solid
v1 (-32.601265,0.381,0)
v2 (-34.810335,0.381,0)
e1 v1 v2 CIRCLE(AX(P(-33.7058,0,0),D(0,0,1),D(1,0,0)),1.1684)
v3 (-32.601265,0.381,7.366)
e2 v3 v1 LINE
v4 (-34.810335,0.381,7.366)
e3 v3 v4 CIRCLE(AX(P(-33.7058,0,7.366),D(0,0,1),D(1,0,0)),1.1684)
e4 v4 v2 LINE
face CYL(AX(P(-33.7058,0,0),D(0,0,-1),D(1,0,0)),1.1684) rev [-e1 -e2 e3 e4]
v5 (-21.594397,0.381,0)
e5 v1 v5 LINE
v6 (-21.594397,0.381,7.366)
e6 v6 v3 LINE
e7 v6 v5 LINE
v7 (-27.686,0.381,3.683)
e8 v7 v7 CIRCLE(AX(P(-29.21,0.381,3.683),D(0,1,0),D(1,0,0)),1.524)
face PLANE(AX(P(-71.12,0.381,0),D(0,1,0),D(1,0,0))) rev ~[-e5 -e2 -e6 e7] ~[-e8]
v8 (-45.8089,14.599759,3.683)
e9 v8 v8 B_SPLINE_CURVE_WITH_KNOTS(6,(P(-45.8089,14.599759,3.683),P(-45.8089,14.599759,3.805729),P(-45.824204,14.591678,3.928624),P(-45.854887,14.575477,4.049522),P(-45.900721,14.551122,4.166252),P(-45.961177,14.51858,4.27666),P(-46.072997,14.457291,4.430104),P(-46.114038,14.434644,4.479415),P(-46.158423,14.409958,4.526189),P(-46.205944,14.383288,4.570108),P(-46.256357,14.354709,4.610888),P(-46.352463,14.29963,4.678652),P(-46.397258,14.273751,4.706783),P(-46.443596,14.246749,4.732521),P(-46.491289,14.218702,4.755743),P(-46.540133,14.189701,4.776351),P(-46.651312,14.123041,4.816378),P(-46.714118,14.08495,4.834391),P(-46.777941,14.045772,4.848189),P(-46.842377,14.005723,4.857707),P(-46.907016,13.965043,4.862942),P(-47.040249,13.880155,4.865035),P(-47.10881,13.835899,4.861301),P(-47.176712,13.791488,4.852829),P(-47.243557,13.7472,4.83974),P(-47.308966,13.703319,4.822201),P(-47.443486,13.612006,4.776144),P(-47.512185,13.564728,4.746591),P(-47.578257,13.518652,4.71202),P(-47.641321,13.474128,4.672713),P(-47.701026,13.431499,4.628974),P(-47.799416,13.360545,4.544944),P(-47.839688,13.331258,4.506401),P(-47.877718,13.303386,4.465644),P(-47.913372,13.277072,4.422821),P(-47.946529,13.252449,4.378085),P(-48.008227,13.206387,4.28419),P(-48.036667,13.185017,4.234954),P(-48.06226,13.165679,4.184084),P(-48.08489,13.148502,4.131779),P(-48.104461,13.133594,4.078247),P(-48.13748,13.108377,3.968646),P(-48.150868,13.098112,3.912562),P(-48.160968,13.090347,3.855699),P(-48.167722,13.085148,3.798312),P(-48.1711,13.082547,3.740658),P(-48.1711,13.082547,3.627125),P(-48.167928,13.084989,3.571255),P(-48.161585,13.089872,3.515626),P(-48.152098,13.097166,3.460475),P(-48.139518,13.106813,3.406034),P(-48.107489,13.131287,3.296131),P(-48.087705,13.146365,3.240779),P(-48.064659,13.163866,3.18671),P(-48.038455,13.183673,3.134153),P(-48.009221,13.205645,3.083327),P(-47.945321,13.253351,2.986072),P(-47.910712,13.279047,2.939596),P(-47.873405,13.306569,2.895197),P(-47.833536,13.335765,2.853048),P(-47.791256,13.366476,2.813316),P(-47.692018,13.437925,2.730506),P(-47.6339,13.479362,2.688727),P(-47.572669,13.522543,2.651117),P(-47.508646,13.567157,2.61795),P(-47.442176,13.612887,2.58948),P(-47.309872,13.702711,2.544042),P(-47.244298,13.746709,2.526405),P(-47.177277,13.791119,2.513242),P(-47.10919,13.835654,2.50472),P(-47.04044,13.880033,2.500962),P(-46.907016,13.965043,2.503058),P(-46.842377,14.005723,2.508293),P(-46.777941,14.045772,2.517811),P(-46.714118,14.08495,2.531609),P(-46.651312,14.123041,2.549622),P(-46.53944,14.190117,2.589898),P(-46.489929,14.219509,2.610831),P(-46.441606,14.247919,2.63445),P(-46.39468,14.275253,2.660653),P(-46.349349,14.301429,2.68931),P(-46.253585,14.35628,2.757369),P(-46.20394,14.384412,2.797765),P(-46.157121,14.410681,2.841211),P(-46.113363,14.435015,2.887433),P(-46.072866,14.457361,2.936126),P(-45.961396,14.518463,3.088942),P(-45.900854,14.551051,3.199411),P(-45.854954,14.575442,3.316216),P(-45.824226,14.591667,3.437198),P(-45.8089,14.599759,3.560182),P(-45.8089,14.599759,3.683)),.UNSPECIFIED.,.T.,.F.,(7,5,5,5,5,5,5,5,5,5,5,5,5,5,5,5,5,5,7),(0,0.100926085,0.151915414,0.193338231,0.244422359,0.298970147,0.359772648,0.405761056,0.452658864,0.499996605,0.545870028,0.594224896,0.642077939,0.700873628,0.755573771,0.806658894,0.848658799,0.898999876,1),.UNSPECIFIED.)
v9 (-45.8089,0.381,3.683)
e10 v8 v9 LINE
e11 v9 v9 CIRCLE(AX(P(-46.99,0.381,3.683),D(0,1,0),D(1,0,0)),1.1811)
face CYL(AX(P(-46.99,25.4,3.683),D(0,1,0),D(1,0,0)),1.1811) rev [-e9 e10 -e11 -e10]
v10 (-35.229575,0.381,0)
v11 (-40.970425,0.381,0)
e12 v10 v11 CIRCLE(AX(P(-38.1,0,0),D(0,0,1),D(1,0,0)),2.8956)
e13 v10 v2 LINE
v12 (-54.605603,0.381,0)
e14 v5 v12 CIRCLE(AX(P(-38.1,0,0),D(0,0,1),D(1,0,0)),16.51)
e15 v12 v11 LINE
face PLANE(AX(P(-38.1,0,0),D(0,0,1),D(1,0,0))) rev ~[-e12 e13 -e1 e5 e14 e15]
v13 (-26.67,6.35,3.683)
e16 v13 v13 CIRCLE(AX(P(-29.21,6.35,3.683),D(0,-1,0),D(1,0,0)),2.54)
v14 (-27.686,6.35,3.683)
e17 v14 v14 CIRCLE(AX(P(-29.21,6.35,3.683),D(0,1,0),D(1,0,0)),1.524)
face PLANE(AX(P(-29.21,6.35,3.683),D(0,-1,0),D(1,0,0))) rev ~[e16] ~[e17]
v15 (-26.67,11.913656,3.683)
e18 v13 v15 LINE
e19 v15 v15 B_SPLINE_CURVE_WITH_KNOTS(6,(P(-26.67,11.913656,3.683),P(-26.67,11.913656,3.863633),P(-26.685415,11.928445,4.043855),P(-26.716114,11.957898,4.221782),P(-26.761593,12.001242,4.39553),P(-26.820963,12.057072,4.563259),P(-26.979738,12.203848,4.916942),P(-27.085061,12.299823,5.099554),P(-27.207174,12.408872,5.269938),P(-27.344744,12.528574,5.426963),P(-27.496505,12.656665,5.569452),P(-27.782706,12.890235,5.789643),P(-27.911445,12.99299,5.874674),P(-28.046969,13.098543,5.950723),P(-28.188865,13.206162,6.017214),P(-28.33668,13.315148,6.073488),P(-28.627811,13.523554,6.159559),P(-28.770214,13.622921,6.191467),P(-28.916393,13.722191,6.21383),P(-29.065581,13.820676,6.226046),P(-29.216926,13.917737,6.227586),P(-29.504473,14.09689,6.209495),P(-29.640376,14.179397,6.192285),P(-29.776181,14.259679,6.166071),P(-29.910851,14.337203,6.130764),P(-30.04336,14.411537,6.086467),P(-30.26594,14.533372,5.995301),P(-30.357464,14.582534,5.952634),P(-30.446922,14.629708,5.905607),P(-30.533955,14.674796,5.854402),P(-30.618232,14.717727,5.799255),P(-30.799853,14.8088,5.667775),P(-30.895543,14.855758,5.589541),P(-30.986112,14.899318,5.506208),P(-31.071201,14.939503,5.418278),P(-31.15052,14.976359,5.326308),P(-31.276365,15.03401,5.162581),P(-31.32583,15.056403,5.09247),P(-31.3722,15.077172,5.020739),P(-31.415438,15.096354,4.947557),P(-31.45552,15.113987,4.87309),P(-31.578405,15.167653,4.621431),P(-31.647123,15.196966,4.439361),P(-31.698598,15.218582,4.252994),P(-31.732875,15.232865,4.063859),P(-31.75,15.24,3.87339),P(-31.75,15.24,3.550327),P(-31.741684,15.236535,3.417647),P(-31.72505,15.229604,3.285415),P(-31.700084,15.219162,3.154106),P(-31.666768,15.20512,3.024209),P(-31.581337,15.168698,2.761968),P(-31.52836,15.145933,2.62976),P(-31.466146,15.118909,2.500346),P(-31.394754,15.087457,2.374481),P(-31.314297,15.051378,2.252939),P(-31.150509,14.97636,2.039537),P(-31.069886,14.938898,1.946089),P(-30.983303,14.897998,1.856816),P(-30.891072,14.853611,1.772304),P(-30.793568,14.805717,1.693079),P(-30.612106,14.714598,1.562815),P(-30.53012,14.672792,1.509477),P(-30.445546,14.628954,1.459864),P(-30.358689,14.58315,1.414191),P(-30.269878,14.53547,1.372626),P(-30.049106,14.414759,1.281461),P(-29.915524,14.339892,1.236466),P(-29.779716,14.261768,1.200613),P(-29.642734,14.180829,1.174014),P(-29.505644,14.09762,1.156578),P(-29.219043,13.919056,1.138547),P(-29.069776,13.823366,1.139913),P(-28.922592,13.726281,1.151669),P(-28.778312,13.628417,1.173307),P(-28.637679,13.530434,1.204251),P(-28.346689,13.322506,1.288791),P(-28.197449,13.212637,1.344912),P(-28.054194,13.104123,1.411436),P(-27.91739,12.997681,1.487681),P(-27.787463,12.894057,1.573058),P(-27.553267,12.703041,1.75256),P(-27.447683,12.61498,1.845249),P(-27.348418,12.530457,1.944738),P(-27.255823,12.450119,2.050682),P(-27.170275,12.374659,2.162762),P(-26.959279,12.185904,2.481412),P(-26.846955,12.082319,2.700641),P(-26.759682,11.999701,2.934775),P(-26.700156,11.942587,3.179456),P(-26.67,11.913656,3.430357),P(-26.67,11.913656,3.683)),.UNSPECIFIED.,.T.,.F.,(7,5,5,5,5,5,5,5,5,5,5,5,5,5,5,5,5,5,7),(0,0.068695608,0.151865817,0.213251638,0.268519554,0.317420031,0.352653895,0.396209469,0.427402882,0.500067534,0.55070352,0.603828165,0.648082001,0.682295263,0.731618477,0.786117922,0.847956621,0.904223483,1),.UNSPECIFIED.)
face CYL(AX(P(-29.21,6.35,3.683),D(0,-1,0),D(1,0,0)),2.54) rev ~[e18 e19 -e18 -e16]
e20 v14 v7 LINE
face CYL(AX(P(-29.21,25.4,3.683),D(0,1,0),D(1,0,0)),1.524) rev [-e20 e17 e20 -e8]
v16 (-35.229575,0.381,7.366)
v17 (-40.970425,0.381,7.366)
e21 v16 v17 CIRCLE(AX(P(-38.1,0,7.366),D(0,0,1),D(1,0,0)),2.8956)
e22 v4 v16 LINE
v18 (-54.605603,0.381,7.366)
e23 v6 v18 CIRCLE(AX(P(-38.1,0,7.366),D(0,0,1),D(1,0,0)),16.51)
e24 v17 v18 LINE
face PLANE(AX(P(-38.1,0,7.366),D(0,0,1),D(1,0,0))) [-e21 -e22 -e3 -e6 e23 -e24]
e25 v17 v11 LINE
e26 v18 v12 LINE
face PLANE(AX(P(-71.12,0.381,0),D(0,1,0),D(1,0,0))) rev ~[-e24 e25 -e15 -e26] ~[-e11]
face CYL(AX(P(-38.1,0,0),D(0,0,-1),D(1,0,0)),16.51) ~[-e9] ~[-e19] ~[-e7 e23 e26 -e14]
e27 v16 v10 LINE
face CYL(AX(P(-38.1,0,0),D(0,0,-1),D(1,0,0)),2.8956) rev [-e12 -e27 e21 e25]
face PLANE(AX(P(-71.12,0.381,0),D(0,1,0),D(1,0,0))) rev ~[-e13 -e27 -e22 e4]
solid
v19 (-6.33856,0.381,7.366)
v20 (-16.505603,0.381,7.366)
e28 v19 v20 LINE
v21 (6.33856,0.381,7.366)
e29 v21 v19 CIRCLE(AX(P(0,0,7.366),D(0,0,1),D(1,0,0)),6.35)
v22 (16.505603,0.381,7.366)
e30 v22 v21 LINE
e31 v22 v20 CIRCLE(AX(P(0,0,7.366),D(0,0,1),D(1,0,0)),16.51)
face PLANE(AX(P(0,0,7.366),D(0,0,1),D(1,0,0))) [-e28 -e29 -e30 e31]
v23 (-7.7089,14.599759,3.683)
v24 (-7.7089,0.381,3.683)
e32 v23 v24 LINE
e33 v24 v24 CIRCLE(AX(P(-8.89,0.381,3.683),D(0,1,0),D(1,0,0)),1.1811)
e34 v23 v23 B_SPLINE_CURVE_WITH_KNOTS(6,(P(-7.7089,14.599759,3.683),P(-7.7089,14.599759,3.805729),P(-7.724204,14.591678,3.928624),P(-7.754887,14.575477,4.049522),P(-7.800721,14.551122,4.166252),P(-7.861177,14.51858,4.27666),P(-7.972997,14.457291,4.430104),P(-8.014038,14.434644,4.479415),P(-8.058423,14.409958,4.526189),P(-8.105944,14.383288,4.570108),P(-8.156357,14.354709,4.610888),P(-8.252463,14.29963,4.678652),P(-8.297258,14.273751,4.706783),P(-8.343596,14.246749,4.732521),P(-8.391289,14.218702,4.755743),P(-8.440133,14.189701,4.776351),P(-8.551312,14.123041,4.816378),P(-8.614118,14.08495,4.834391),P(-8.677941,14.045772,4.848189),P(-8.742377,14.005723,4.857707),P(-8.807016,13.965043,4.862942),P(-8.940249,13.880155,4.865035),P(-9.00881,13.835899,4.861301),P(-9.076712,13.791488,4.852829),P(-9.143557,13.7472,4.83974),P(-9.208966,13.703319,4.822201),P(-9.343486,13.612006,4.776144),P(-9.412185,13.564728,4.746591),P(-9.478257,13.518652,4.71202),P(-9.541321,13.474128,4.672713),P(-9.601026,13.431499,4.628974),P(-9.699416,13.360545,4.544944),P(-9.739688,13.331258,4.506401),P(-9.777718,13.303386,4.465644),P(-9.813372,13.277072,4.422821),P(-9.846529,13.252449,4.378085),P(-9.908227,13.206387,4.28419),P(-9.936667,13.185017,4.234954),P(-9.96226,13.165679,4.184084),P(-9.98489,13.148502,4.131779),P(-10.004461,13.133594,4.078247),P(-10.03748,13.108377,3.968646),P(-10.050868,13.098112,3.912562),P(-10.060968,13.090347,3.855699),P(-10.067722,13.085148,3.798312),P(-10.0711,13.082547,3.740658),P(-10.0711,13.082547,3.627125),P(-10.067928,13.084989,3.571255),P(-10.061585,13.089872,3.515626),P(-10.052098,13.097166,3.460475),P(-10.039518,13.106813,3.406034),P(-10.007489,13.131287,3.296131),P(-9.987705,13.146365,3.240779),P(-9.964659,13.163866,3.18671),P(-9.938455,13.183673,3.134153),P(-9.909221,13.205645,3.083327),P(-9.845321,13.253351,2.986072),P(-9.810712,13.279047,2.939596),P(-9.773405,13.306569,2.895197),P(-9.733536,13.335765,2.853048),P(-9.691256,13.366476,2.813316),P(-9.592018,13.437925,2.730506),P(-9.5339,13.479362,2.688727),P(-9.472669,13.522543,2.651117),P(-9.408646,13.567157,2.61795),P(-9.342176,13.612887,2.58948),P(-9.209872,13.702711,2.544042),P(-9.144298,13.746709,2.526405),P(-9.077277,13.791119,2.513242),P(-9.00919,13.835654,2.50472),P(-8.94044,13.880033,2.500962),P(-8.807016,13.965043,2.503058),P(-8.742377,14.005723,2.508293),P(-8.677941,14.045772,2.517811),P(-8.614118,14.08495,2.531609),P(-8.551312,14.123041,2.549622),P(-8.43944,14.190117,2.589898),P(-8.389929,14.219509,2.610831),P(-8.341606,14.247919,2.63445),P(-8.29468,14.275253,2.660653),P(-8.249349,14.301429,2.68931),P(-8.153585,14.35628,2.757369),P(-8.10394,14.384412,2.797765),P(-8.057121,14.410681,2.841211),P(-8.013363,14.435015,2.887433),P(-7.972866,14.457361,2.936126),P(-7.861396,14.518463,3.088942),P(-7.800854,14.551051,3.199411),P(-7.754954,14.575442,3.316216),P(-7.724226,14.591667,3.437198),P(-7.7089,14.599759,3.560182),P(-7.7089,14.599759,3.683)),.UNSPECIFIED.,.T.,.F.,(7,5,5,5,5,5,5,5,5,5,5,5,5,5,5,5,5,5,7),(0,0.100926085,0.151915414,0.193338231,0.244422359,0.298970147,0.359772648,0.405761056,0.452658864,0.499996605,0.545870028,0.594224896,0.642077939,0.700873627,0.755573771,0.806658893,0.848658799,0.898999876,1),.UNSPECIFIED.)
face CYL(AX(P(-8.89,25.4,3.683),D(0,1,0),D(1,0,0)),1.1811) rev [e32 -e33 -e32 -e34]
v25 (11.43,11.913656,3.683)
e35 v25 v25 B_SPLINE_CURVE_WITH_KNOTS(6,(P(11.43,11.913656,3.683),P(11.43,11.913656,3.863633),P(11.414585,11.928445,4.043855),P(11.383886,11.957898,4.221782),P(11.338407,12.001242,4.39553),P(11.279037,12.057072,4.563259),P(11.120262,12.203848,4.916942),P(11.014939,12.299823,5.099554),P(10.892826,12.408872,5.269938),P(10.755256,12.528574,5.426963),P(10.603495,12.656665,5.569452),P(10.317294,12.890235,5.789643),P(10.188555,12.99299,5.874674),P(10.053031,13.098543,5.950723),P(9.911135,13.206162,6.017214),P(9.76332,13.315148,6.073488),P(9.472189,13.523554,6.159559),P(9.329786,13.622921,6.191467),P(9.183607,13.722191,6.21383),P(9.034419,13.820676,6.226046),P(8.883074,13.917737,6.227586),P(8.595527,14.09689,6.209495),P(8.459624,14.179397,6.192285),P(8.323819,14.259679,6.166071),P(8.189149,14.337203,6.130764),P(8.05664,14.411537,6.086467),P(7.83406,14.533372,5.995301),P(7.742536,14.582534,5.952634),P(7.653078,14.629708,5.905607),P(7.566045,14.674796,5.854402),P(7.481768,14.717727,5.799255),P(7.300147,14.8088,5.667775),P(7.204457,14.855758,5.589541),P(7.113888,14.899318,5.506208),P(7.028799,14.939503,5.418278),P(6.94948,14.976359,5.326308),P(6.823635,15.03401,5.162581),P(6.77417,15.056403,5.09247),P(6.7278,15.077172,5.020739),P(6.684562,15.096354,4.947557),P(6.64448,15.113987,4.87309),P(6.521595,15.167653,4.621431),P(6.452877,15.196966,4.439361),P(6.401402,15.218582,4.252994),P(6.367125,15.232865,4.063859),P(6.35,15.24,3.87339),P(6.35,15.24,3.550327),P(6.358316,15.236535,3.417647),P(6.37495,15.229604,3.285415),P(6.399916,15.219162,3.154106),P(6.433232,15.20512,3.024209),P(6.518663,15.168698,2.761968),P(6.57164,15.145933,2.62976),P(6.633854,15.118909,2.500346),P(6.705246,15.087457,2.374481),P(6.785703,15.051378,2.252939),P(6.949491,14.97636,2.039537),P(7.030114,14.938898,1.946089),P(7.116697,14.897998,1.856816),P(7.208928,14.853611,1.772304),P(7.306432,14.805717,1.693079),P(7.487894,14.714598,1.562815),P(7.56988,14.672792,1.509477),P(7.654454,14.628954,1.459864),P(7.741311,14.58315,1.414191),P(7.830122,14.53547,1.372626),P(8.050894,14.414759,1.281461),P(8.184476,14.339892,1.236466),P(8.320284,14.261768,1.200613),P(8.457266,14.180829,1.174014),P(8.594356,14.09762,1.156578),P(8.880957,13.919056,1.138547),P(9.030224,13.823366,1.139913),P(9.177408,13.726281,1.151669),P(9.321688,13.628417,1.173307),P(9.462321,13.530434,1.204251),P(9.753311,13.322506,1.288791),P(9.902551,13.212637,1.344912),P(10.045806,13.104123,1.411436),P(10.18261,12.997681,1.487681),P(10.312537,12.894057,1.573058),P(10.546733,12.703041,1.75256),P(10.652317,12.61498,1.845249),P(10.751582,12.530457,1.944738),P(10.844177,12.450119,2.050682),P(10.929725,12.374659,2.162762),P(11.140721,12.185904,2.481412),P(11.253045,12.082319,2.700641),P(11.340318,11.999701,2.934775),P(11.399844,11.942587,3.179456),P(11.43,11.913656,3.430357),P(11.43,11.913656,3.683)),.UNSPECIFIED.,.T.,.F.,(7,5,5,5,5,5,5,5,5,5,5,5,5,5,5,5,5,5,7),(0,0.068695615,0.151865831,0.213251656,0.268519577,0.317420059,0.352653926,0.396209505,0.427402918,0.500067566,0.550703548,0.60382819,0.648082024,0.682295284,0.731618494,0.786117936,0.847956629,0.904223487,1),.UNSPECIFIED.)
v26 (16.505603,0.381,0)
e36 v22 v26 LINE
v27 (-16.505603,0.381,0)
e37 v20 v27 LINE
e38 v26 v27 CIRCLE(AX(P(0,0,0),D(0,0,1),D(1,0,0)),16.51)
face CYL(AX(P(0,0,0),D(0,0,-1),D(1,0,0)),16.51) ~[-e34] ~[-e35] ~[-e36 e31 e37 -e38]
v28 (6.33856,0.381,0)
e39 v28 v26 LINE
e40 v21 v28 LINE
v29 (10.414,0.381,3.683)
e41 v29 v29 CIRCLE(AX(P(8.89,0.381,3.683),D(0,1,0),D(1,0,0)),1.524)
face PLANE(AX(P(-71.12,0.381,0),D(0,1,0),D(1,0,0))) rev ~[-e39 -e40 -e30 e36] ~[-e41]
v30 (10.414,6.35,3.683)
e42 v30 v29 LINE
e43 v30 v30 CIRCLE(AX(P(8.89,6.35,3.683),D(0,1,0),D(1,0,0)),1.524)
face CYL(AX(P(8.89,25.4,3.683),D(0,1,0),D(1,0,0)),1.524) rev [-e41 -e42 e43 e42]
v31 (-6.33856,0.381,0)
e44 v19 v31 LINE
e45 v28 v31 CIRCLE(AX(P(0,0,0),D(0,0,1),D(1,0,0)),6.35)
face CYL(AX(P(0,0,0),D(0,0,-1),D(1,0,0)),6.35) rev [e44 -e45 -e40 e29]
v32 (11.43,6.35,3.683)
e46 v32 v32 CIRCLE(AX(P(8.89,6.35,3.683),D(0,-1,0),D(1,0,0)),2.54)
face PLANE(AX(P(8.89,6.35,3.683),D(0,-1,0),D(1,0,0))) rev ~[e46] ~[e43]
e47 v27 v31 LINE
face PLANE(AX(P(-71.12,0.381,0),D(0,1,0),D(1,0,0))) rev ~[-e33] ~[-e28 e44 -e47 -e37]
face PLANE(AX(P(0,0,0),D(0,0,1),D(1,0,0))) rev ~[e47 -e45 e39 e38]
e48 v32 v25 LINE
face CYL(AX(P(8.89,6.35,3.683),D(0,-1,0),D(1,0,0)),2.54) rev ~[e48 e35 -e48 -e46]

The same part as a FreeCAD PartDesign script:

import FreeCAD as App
import Part
import Sketcher
Q = App.Units.Quantity


def add_polygon(sketch, points):
    """Adds a closed chain of lines whose ends are joined by coincident constraints."""
    first, n = sketch.GeometryCount, len(points)
    for a, b in zip(points, points[1:] + points[:1]):
        sketch.addGeometry(Part.LineSegment(App.Vector(*a, 0), App.Vector(*b, 0)), False)
    for i in range(n):
        sketch.addConstraint(Sketcher.Constraint("Coincident", first + i, 2, first + (i + 1) % n, 1))

doc = App.newDocument("Part")
body = doc.addObject("PartDesign::Body", "Body")
body.AllowCompound = True

# Sketch on XY plane
sketch1 = body.newObject("Sketcher::SketchObject", "Sketch")
sketch1.AttachmentSupport = (doc.getObject("XY_Plane"), [""])
sketch1.MapMode = "FlatFace"
sketch1.addGeometry(Part.Circle(App.Vector(-38.1, 0, 0), App.Vector(0, 0, 1), 16.51), False)
sketch1.addGeometry(Part.Circle(App.Vector(-38.1, 0, 0), App.Vector(0, 0, 1), 2.8956), False)
sketch1.addGeometry(Part.Circle(App.Vector(-33.7058, 0, 0), App.Vector(0, 0, 1), 1.1684), False)
sketch1.addGeometry(Part.Circle(App.Vector(0, 0, 0), App.Vector(0, 0, 1), 16.51), False)
sketch1.addGeometry(Part.Circle(App.Vector(0, 0, 0), App.Vector(0, 0, 1), 6.35), False)
sketch1.addConstraint(Sketcher.Constraint("Coincident", 3, 3, -1, 1))
sketch1.addConstraint(Sketcher.Constraint("Coincident", 4, 3, -1, 1))
sketch1.addConstraint(Sketcher.Constraint("Coincident", 1, 3, 0, 3))
sketch1.addConstraint(Sketcher.Constraint("Equal", 0, 3))
sketch1.addConstraint(Sketcher.Constraint("PointOnObject", 0, 3, -1))
sketch1.addConstraint(Sketcher.Constraint("PointOnObject", 2, 3, -1))
sketch1.addConstraint(Sketcher.Constraint("Diameter", 0, Q("1.3 in")))
sketch1.addConstraint(Sketcher.Constraint("Diameter", 4, Q("0.5 in")))
sketch1.addConstraint(Sketcher.Constraint("Diameter", 1, Q("0.228 in")))
sketch1.addConstraint(Sketcher.Constraint("Diameter", 2, Q("0.092 in")))
sketch1.addConstraint(Sketcher.Constraint("DistanceX", 0, 3, -1, 1, Q("1.5 in")))
sketch1.addConstraint(Sketcher.Constraint("DistanceX", 2, 3, -1, 1, Q("1.327 in")))
pad1 = body.newObject("PartDesign::Pad", "Pad")
pad1.Profile = sketch1
pad1.Length = Q("0.29 in")

# Sketch on XY plane
sketch2 = body.newObject("Sketcher::SketchObject", "Sketch001")
sketch2.AttachmentSupport = (doc.getObject("XY_Plane"), [""])
sketch2.MapMode = "FlatFace"
add_polygon(sketch2, [(-71.12, 0.381), (-71.12, -25.4), (17.78, -25.4), (17.78, 0.381)])  # lines 0-3
sketch2.addConstraint(Sketcher.Constraint("Vertical", 0))
sketch2.addConstraint(Sketcher.Constraint("Horizontal", 1))
sketch2.addConstraint(Sketcher.Constraint("Vertical", 2))
sketch2.addConstraint(Sketcher.Constraint("Horizontal", 3))
sketch2.addConstraint(Sketcher.Constraint("DistanceX", 1, 1, 1, 2, Q("3.5 in")))
sketch2.addConstraint(Sketcher.Constraint("DistanceY", 0, 2, -1, 1, Q("1 in")))
sketch2.addConstraint(Sketcher.Constraint("DistanceX", 0, 2, -1, 1, Q("2.8 in")))
sketch2.addConstraint(Sketcher.Constraint("DistanceY", 0, 2, 0, 1, Q("1.015 in")))
pocket1 = body.newObject("PartDesign::Pocket", "Pocket")
pocket1.Profile = sketch2
pocket1.Length = Q("1 in")
pocket1.Reversed = True

# Sketch on XZ plane
sketch3 = body.newObject("Sketcher::SketchObject", "Sketch002")
sketch3.AttachmentSupport = (doc.getObject("XZ_Plane"), [""])
sketch3.MapMode = "FlatFace"
sketch3.AttachmentOffset = App.Placement(App.Vector(0, 0, -1 * 25.4), App.Rotation())
sketch3.addGeometry(Part.Circle(App.Vector(8.89, 3.683, 0), App.Vector(0, 0, 1), 1.524), False)
sketch3.addGeometry(Part.Circle(App.Vector(-8.89, 3.683, 0), App.Vector(0, 0, 1), 1.1811), False)
sketch3.addGeometry(Part.Circle(App.Vector(-46.99, 3.683, 0), App.Vector(0, 0, 1), 1.1811), False)
sketch3.addGeometry(Part.Circle(App.Vector(-29.21, 3.683, 0), App.Vector(0, 0, 1), 1.524), False)
sketch3.addConstraint(Sketcher.Constraint("Equal", 1, 2))
sketch3.addConstraint(Sketcher.Constraint("Equal", 0, 3))
sketch3.addConstraint(Sketcher.Constraint("Symmetric", 0, 3, 1, 3, -2))
sketch3.addConstraint(Sketcher.Constraint("Horizontal", 1, 3, 2, 3))
sketch3.addConstraint(Sketcher.Constraint("Horizontal", 2, 3, 3, 3))
sketch3.addConstraint(Sketcher.Constraint("Diameter", 0, Q("0.12 in")))
sketch3.addConstraint(Sketcher.Constraint("Diameter", 1, Q("0.093 in")))
sketch3.addConstraint(Sketcher.Constraint("DistanceX", 1, 3, 0, 3, Q("0.7 in")))
sketch3.addConstraint(Sketcher.Constraint("DistanceX", 2, 3, 1, 3, Q("1.5 in")))
sketch3.addConstraint(Sketcher.Constraint("DistanceX", 2, 3, 3, 3, Q("0.7 in")))
sketch3.addConstraint(Sketcher.Constraint("DistanceY", -1, 1, 0, 3, Q("0.145 in")))
pocket2 = body.newObject("PartDesign::Pocket", "Pocket001")
pocket2.Profile = sketch3
pocket2.Length = Q("1 in")
pocket2.Reversed = True

# Sketch on XZ plane
sketch4 = body.newObject("Sketcher::SketchObject", "Sketch003")
sketch4.AttachmentSupport = (doc.getObject("XZ_Plane"), [""])
sketch4.MapMode = "FlatFace"
sketch4.AttachmentOffset = App.Placement(App.Vector(0, 0, -0.25 * 25.4), App.Rotation())
sketch4.addGeometry(Part.Circle(App.Vector(8.89, 3.683, 0), App.Vector(0, 0, 1), 2.54), False)
sketch4.addGeometry(Part.Circle(App.Vector(-29.21, 3.683, 0), App.Vector(0, 0, 1), 2.54), False)
sketch4.addConstraint(Sketcher.Constraint("Equal", 0, 1))
sketch4.addConstraint(Sketcher.Constraint("Horizontal", 0, 3, 1, 3))
sketch4.addConstraint(Sketcher.Constraint("Diameter", 0, Q("0.2 in")))
sketch4.addConstraint(Sketcher.Constraint("DistanceX", 1, 3, 0, 3, Q("1.5 in")))
sketch4.addConstraint(Sketcher.Constraint("DistanceX", -1, 1, 0, 3, Q("0.35 in")))
sketch4.addConstraint(Sketcher.Constraint("DistanceY", -1, 1, 0, 3, Q("0.145 in")))
pocket3 = body.newObject("PartDesign::Pocket", "Pocket002")
pocket3.Profile = sketch4
pocket3.Length = Q("1 in")

doc.recompute()
